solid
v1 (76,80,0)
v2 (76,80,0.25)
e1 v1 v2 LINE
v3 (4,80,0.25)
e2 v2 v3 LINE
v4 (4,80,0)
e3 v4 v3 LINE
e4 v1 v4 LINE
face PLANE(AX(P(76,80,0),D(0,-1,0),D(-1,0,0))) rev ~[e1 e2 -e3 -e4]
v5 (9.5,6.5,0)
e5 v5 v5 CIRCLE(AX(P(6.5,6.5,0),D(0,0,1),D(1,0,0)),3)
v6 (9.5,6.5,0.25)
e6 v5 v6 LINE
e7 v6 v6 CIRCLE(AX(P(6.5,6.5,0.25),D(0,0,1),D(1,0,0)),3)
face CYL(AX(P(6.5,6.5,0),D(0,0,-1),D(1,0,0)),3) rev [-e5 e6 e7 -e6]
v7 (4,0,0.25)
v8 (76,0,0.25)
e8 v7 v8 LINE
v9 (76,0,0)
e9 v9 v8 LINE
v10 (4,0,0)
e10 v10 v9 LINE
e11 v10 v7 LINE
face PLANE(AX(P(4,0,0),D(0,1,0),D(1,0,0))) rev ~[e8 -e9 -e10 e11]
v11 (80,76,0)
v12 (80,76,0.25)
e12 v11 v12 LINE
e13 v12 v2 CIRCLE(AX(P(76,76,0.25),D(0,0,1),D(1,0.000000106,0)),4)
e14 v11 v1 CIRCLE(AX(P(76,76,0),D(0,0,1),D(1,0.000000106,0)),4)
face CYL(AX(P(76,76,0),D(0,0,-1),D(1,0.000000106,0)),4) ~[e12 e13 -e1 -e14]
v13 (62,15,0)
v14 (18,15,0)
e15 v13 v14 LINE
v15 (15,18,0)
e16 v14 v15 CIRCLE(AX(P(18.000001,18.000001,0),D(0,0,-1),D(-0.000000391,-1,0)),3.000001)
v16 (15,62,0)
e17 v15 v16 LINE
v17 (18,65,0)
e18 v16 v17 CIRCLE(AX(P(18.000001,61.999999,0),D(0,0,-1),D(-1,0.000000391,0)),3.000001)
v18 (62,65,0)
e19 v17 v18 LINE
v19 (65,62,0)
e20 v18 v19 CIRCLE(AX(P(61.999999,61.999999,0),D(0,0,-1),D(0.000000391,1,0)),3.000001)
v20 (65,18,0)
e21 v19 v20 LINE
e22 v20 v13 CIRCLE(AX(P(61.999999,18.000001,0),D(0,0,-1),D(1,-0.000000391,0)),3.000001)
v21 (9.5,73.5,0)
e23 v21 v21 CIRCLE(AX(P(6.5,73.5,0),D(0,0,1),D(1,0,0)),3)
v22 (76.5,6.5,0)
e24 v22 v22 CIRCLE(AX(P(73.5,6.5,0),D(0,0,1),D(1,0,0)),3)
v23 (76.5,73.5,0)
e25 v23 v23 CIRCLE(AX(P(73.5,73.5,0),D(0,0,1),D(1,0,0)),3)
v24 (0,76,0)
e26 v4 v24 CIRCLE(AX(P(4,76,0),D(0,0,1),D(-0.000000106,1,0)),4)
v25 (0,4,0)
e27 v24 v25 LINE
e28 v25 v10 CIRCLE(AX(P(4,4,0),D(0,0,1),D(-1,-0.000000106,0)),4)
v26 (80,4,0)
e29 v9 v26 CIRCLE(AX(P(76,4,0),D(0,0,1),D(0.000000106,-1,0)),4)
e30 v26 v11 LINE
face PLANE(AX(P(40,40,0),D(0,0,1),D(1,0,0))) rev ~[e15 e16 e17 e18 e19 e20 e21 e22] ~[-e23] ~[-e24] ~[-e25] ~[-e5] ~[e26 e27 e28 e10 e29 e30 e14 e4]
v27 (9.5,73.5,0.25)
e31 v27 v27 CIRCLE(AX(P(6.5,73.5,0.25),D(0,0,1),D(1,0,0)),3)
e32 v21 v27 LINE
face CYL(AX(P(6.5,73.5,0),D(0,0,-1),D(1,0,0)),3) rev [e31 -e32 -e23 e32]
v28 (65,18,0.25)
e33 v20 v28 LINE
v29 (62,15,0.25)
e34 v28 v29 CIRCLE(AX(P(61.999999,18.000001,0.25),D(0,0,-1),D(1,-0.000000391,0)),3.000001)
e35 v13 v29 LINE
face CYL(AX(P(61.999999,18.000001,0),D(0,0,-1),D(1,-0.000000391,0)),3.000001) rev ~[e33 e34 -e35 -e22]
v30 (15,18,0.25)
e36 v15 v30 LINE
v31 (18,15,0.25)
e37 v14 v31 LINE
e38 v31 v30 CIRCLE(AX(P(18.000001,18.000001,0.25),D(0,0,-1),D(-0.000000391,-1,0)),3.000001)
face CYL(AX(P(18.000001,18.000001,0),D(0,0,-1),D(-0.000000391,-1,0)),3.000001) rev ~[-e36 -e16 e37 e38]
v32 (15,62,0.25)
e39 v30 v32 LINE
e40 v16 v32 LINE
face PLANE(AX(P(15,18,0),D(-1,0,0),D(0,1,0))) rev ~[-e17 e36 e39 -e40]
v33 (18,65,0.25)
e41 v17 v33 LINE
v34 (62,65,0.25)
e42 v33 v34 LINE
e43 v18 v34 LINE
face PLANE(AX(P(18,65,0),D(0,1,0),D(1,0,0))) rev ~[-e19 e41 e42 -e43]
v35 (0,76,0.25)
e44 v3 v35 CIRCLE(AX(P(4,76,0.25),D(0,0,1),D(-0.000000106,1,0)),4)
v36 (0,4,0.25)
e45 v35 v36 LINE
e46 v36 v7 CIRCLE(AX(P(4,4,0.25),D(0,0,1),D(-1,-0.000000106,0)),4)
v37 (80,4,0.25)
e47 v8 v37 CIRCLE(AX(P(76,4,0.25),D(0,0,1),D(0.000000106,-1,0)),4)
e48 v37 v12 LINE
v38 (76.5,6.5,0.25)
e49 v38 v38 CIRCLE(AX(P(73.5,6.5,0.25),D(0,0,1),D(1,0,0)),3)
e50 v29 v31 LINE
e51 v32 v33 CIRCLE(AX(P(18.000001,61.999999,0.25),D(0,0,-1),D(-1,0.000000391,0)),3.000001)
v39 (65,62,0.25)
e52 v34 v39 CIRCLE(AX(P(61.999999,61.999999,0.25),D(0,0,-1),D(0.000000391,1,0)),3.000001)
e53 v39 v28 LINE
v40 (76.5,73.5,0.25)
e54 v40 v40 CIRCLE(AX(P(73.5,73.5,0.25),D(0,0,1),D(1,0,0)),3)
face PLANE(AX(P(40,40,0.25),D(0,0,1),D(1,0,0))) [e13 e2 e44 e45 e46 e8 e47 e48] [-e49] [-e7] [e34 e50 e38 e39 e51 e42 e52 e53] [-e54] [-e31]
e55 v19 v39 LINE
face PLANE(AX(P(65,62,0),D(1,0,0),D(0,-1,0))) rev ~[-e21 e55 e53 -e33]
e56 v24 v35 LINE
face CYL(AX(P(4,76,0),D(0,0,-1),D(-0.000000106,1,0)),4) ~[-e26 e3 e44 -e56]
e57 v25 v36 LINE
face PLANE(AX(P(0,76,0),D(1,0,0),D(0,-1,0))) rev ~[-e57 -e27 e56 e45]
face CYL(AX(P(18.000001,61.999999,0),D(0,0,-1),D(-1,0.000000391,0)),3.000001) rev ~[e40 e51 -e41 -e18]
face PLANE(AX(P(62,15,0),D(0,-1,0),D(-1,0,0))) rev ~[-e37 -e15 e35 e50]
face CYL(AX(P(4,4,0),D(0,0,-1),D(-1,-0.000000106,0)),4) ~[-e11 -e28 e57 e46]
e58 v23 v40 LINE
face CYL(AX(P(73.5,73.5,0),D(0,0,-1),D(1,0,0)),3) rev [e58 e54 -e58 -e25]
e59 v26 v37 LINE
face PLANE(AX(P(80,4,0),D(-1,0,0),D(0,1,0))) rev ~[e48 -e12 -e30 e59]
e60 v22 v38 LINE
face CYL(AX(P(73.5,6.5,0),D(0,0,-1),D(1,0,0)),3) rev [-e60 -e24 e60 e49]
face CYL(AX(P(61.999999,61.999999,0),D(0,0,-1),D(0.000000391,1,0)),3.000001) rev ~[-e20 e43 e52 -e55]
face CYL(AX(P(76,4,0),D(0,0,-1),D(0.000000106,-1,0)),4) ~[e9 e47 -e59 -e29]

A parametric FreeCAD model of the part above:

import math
import FreeCAD as App
import Part
import Sketcher
from FreeCAD import Vector
Q = App.Units.Quantity

doc = App.newDocument("Part")
params = doc.addObject("Spreadsheet::Sheet", "Params")
for row, (alias, value) in enumerate([
    ("sketch1_diameter", "6 mm"),
    ("sketch1_radius", "4 mm"),
    ("sketch1_width", "72 mm"),
    ("sketch1_width2", "44 mm"),
    ("pad1_length", "0.25 mm"),
], start=1):
    params.set(f"A{row}", alias)
    params.set(f"B{row}", "=" + value)
    params.setAlias(f"B{row}", alias)

body = doc.addObject("PartDesign::Body", "Body")

sketch1 = body.newObject("Sketcher::SketchObject", "Sketch")
sketch1.AttachmentSupport = (doc.getObject("XY_Plane"), [""])
sketch1.MapMode = "FlatFace"
sketch1.addGeometry([
    Part.ArcOfCircle(Part.Circle(Vector(4, 4, 0), Vector(0, 0, 1), 4), math.radians(-180), math.radians(-90)),
    Part.LineSegment(Vector(4, 0, 0), Vector(76, 0, 0)),
    Part.ArcOfCircle(Part.Circle(Vector(76, 4, 0), Vector(0, 0, 1), 4), math.radians(-90), math.radians(0)),
    Part.LineSegment(Vector(80, 4, 0), Vector(80, 76, 0)),
    Part.ArcOfCircle(Part.Circle(Vector(76, 76, 0), Vector(0, 0, 1), 4), math.radians(0), math.radians(90)),
    Part.LineSegment(Vector(76, 80, 0), Vector(4, 80, 0)),
    Part.ArcOfCircle(Part.Circle(Vector(4, 76, 0), Vector(0, 0, 1), 4), math.radians(90), math.radians(180)),
    Part.LineSegment(Vector(0, 76, 0), Vector(0, 4, 0)),
    Part.Circle(Vector(6.5, 6.5, 0), Vector(0, 0, 1), 3),
    Part.Circle(Vector(73.5, 6.5, 0), Vector(0, 0, 1), 3),
    Part.Circle(Vector(6.5, 73.5, 0), Vector(0, 0, 1), 3),
    Part.LineSegment(Vector(15, 18, 0), Vector(15, 62, 0)),
    Part.ArcOfCircle(Part.Circle(Vector(18, 62, 0), Vector(0, 0, 1), 3), math.radians(90), math.radians(180)),
    Part.LineSegment(Vector(18, 65, 0), Vector(62, 65, 0)),
    Part.ArcOfCircle(Part.Circle(Vector(62, 62, 0), Vector(0, 0, 1), 3), math.radians(0), math.radians(90)),
    Part.LineSegment(Vector(65, 62, 0), Vector(65, 18, 0)),
    Part.ArcOfCircle(Part.Circle(Vector(62, 18, 0), Vector(0, 0, 1), 3), math.radians(-90), math.radians(0)),
    Part.LineSegment(Vector(62, 15, 0), Vector(18, 15, 0)),
    Part.ArcOfCircle(Part.Circle(Vector(18, 18, 0), Vector(0, 0, 1), 3), math.radians(-180), math.radians(-90)),
    Part.Circle(Vector(73.5, 73.5, 0), Vector(0, 0, 1), 3),
], False)
sketch1.addConstraint([
    Sketcher.Constraint("Tangent", 0, 2, 1, 1),
    Sketcher.Constraint("Tangent", 1, 2, 2, 1),
    Sketcher.Constraint("Tangent", 2, 2, 3, 1),
    Sketcher.Constraint("Tangent", 3, 2, 4, 1),
    Sketcher.Constraint("Tangent", 4, 2, 5, 1),
    Sketcher.Constraint("Tangent", 5, 2, 6, 1),
    Sketcher.Constraint("Tangent", 6, 2, 7, 1),
    Sketcher.Constraint("Tangent", 7, 2, 0, 1),
    Sketcher.Constraint("Tangent", 11, 2, 12, 2),
    Sketcher.Constraint("Tangent", 12, 1, 13, 1),
    Sketcher.Constraint("Tangent", 13, 2, 14, 2),
    Sketcher.Constraint("Tangent", 14, 1, 15, 1),
    Sketcher.Constraint("Tangent", 15, 2, 16, 2),
    Sketcher.Constraint("Tangent", 16, 1, 17, 1),
    Sketcher.Constraint("Tangent", 17, 2, 18, 2),
    Sketcher.Constraint("Tangent", 18, 1, 11, 1),
    Sketcher.Constraint("Horizontal", 1),
    Sketcher.Constraint("Vertical", 3),
    Sketcher.Constraint("Horizontal", 5),
    Sketcher.Constraint("Vertical", 7),
    Sketcher.Constraint("Vertical", 11),
    Sketcher.Constraint("Horizontal", 13),
    Sketcher.Constraint("Vertical", 15),
    Sketcher.Constraint("Horizontal", 17),
    Sketcher.Constraint("Equal", 0, 2),
    Sketcher.Constraint("Equal", 2, 4),
    Sketcher.Constraint("Equal", 4, 6),
    Sketcher.Constraint("Equal", 8, 9),
    Sketcher.Constraint("Equal", 9, 10),
    Sketcher.Constraint("Equal", 10, 12),
    Sketcher.Constraint("Equal", 12, 14),
    Sketcher.Constraint("Equal", 14, 16),
    Sketcher.Constraint("Equal", 16, 18),
    Sketcher.Constraint("Equal", 18, 19),
    Sketcher.Constraint("PointOnObject", 0, 2, -1),
    Sketcher.Constraint("PointOnObject", 6, 2, -2),
    Sketcher.Constraint("Horizontal", 8, 3, 9, 3),
    Sketcher.Constraint("Horizontal", 10, 3, 19, 3),
    Sketcher.Constraint("Vertical", 8, 3, 10, 3),
    Sketcher.Constraint("Vertical", 9, 3, 19, 3),
    Sketcher.Constraint("Equal", 5, 3),
    Sketcher.Constraint("Equal", 17, 11),
    Sketcher.Constraint("Diameter", 8, Q("6 mm")),
    Sketcher.Constraint("Radius", 0, Q("4 mm")),
    Sketcher.Constraint("DistanceX", 1, 1, 1, 2, Q("72 mm")),
    Sketcher.Constraint("DistanceX", 13, 1, 13, 2, Q("44 mm")),
    Sketcher.Constraint("DistanceX", -1, 1, 12, 3, Q("18.000001 mm")),
    Sketcher.Constraint("DistanceY", -1, 1, 12, 3, Q("61.999999 mm")),
    Sketcher.Constraint("DistanceX", 8, 3, 9, 3, Q("67 mm")),
    Sketcher.Constraint("DistanceY", 8, 3, 10, 3, Q("67 mm")),
    Sketcher.Constraint("DistanceX", -1, 1, 8, 3, Q("6.5 mm")),
    Sketcher.Constraint("DistanceY", -1, 1, 8, 3, Q("6.5 mm")),
])
sketch1.setExpression("Constraints[42]", "Params.sketch1_diameter")
sketch1.setExpression("Constraints[43]", "Params.sketch1_radius")
sketch1.setExpression("Constraints[44]", "Params.sketch1_width")
sketch1.setExpression("Constraints[45]", "Params.sketch1_width2")
pad1 = body.newObject("PartDesign::Pad", "Pad")
pad1.Profile = sketch1
pad1.setExpression("Length", "Params.pad1_length")

doc.recompute()
